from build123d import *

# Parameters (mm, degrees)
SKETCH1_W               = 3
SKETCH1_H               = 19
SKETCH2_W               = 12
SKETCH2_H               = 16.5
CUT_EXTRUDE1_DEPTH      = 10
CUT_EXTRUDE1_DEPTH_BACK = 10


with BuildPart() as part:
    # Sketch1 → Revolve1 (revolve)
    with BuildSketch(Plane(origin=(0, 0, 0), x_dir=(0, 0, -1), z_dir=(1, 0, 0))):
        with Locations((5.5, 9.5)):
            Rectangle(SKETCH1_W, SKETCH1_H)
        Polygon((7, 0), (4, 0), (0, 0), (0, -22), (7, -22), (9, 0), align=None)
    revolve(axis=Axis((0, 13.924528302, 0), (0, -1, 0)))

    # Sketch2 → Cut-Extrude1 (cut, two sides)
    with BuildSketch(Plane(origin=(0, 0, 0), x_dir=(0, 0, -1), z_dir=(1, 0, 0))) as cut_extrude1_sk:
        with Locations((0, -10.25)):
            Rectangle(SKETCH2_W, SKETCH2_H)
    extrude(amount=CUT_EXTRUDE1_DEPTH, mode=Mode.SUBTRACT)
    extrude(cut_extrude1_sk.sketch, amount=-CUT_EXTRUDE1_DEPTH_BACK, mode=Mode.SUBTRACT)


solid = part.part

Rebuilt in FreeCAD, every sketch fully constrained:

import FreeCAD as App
import Part
import Sketcher
from FreeCAD import Vector
Q = App.Units.Quantity

doc = App.newDocument("Part")
body = doc.addObject("PartDesign::Body", "Body")

# Sketch on YZ plane
sketch1 = body.newObject("Sketcher::SketchObject", "Sketch")
sketch1.AttachmentSupport = (doc.getObject("YZ_Plane"), [""])
sketch1.MapMode = "FlatFace"
sketch1.addGeometry(Part.LineSegment(Vector(19, -4, 0), Vector(0, -4, 0)), False)
sketch1.addGeometry(Part.LineSegment(Vector(0, -4, 0), Vector(0, 0, 0)), False)
sketch1.addGeometry(Part.LineSegment(Vector(0, 0, 0), Vector(-22, 0, 0)), False)
sketch1.addGeometry(Part.LineSegment(Vector(-22, 0, 0), Vector(-22, -7, 0)), False)
sketch1.addGeometry(Part.LineSegment(Vector(-22, -7, 0), Vector(0, -9, 0)), False)
sketch1.addGeometry(Part.LineSegment(Vector(0, -9, 0), Vector(0, -7, 0)), False)
sketch1.addGeometry(Part.LineSegment(Vector(0, -7, 0), Vector(19, -7, 0)), False)
sketch1.addGeometry(Part.LineSegment(Vector(19, -7, 0), Vector(19, -4, 0)), False)
sketch1.addConstraint(Sketcher.Constraint("Coincident", 0, 2, 1, 1))
sketch1.addConstraint(Sketcher.Constraint("Coincident", 1, 2, 2, 1))
sketch1.addConstraint(Sketcher.Constraint("Coincident", 2, 2, 3, 1))
sketch1.addConstraint(Sketcher.Constraint("Coincident", 3, 2, 4, 1))
sketch1.addConstraint(Sketcher.Constraint("Coincident", 4, 2, 5, 1))
sketch1.addConstraint(Sketcher.Constraint("Coincident", 5, 2, 6, 1))
sketch1.addConstraint(Sketcher.Constraint("Coincident", 6, 2, 7, 1))
sketch1.addConstraint(Sketcher.Constraint("Coincident", 7, 2, 0, 1))
sketch1.addConstraint(Sketcher.Constraint("Horizontal", 0))
sketch1.addConstraint(Sketcher.Constraint("Vertical", 1))
sketch1.addConstraint(Sketcher.Constraint("Horizontal", 2))
sketch1.addConstraint(Sketcher.Constraint("Vertical", 3))
sketch1.addConstraint(Sketcher.Constraint("Vertical", 5))
sketch1.addConstraint(Sketcher.Constraint("Horizontal", 6))
sketch1.addConstraint(Sketcher.Constraint("Vertical", 7))
sketch1.addConstraint(Sketcher.Constraint("Coincident", 1, 2, -1, 1))
sketch1.addConstraint(Sketcher.Constraint("PointOnObject", 4, 2, -2))
sketch1.addConstraint(Sketcher.Constraint("Horizontal", 3, 2, 5, 2))
sketch1.addConstraint(Sketcher.Constraint("DistanceX", 0, 2, 0, 1, Q("19 mm")))
sketch1.addConstraint(Sketcher.Constraint("DistanceX", 2, 2, 2, 1, Q("22 mm")))
sketch1.addConstraint(Sketcher.Constraint("DistanceY", 1, 1, 1, 2, Q("4 mm")))
sketch1.addConstraint(Sketcher.Constraint("DistanceY", 3, 2, 3, 1, Q("7 mm")))
sketch1.addConstraint(Sketcher.Constraint("DistanceY", 5, 1, 5, 2, Q("2 mm")))
revolution = body.newObject("PartDesign::Revolution", "Revolution")
revolution.Profile = sketch1
revolution.ReferenceAxis = (sketch1, ["H_Axis"])
revolution.Angle = 360

# Sketch on YZ plane
sketch2 = body.newObject("Sketcher::SketchObject", "Sketch001")
sketch2.AttachmentSupport = (doc.getObject("YZ_Plane"), [""])
sketch2.MapMode = "FlatFace"
sketch2.addGeometry(Part.LineSegment(Vector(-2, 6, 0), Vector(-18, 6, 0)), False)
sketch2.addGeometry(Part.LineSegment(Vector(-18, 6, 0), Vector(-18, -6, 0)), False)
sketch2.addGeometry(Part.LineSegment(Vector(-18, -6, 0), Vector(-2, -6, 0)), False)
sketch2.addGeometry(Part.LineSegment(Vector(-2, -6, 0), Vector(-2, 6, 0)), False)
sketch2.addConstraint(Sketcher.Constraint("Coincident", 0, 2, 1, 1))
sketch2.addConstraint(Sketcher.Constraint("Coincident", 1, 2, 2, 1))
sketch2.addConstraint(Sketcher.Constraint("Coincident", 2, 2, 3, 1))
sketch2.addConstraint(Sketcher.Constraint("Coincident", 3, 2, 0, 1))
sketch2.addConstraint(Sketcher.Constraint("Horizontal", 0))
sketch2.addConstraint(Sketcher.Constraint("Vertical", 1))
sketch2.addConstraint(Sketcher.Constraint("Horizontal", 2))
sketch2.addConstraint(Sketcher.Constraint("Vertical", 3))
sketch2.addConstraint(Sketcher.Constraint("DistanceY", 1, 2, 1, 1, Q("12 mm")))
sketch2.addConstraint(Sketcher.Constraint("DistanceX", 0, 2, 0, 1, Q("16.5 mm")))
sketch2.addConstraint(Sketcher.Constraint("DistanceY", -1, 1, 0, 2, Q("6 mm")))
sketch2.addConstraint(Sketcher.Constraint("DistanceX", 2, 2, -1, 1, Q("2 mm")))
pocket1 = body.newObject("PartDesign::Pocket", "Pocket")
pocket1.Profile = sketch2
pocket1.Type = "ThroughAll"
pocket1.Midplane = True

doc.recompute()
